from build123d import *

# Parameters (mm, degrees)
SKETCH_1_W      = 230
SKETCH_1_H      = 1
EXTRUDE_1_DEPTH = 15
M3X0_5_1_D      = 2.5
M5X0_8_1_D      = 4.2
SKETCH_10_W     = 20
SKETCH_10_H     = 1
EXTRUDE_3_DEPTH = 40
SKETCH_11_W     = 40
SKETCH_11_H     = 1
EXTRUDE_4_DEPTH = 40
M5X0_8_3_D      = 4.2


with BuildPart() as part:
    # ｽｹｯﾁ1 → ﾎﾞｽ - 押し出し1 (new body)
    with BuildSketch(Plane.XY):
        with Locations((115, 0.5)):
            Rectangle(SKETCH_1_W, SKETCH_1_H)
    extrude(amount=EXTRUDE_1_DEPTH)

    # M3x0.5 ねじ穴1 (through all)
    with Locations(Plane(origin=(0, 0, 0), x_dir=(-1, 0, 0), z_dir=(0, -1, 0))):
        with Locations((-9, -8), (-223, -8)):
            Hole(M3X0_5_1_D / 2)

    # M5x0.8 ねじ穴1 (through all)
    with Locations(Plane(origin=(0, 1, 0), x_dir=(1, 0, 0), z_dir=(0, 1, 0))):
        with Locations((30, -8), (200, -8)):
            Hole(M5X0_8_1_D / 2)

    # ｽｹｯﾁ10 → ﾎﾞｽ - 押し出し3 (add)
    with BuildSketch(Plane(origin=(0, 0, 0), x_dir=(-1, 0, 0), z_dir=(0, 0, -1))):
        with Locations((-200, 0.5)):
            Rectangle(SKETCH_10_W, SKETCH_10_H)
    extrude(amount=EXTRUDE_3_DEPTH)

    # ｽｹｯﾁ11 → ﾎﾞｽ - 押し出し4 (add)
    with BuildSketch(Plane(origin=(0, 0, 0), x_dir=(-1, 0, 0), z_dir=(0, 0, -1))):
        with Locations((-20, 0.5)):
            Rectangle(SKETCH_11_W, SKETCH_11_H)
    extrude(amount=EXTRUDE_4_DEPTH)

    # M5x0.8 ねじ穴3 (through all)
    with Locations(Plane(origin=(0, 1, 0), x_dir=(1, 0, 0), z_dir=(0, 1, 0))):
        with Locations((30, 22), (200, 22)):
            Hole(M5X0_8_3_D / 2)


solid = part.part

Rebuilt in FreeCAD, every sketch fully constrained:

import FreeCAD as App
import Part
import Sketcher

V = App.Vector
Q = App.Units.Quantity


def add_polygon(sketch, points):
    """Adds a closed chain of lines whose ends are joined by coincident constraints."""
    first, n = sketch.GeometryCount, len(points)
    for a, b in zip(points, points[1:] + points[:1]):
        sketch.addGeometry(Part.LineSegment(App.Vector(*a, 0), App.Vector(*b, 0)), False)
    for i in range(n):
        sketch.addConstraint(Sketcher.Constraint("Coincident", first + i, 2, first + (i + 1) % n, 1))

doc = App.newDocument("Part")
params = doc.addObject("Spreadsheet::Sheet", "Params")
for row, (alias, value) in enumerate([
    ("sketch1_width", "230 mm"),
    ("sketch1_height", "1 mm"),
    ("pad1_length", "15 mm"),
    ("sketch2_diameter", "2.5 mm"),
    ("hole_diameter", "2.5 mm"),
    ("sketch3_diameter", "4.2 mm"),
    ("hole2_diameter", "4.2 mm"),
    ("sketch4_width", "20 mm"),
    ("sketch4_height", "1 mm"),
    ("pad2_length", "40 mm"),
    ("sketch5_width", "40 mm"),
    ("sketch5_height", "1 mm"),
    ("pad3_length", "40 mm"),
    ("sketch6_diameter", "4.2 mm"),
    ("hole3_diameter", "4.2 mm"),
], start=1):
    params.set(f"A{row}", alias)
    params.set(f"B{row}", "=" + value)
    params.setAlias(f"B{row}", alias)

body = doc.addObject("PartDesign::Body", "Body")

# Sketch on XY plane
sketch1 = doc.addObject("Sketcher::SketchObject", "Sketch")
body.addObject(sketch1)
sketch1.AttachmentSupport = (doc.XY_Plane, [""])
sketch1.MapMode = "FlatFace"
add_polygon(sketch1, [(0, 1), (0, 0), (230, 0), (230, 1)])  # lines 0-3
sketch1.addConstraint(Sketcher.Constraint("Vertical", 0))
sketch1.addConstraint(Sketcher.Constraint("Horizontal", 1))
sketch1.addConstraint(Sketcher.Constraint("Vertical", 2))
sketch1.addConstraint(Sketcher.Constraint("Horizontal", 3))
sketch1.addConstraint(Sketcher.Constraint("Coincident", 0, 2, -1, 1))
sketch1.addConstraint(Sketcher.Constraint("DistanceX", 1, 1, 1, 2, Q("230 mm")))
sketch1.addConstraint(Sketcher.Constraint("DistanceY", 0, 2, 0, 1, Q("1 mm")))
sketch1.setExpression("Constraints[9]", "Params.sketch1_width")
sketch1.setExpression("Constraints[10]", "Params.sketch1_height")
pad1 = doc.addObject("PartDesign::Pad", "Pad")
body.addObject(pad1)
pad1.Profile = sketch1
pad1.setExpression("Length", "Params.pad1_length")

# Sketch on XZ plane
sketch2 = doc.addObject("Sketcher::SketchObject", "Sketch001")
body.addObject(sketch2)
sketch2.AttachmentSupport = (doc.XZ_Plane, [""])
sketch2.MapMode = "FlatFace"
sketch2.addGeometry(Part.Circle(V(9, 8, 0), V(0, 0, 1), 1.2), False)
sketch2.addGeometry(Part.Circle(V(223, 8, 0), V(0, 0, 1), 1.2), False)
sketch2.addConstraint(Sketcher.Constraint("Equal", 0, 1))
sketch2.addConstraint(Sketcher.Constraint("Horizontal", 0, 3, 1, 3))
sketch2.addConstraint(Sketcher.Constraint("Diameter", 0, Q("2.5 mm")))
sketch2.addConstraint(Sketcher.Constraint("DistanceX", -1, 1, 0, 3, Q("9 mm")))
sketch2.addConstraint(Sketcher.Constraint("DistanceY", -1, 1, 0, 3, Q("8 mm")))
sketch2.addConstraint(Sketcher.Constraint("DistanceX", -1, 1, 1, 3, Q("223 mm")))
sketch2.setExpression("Constraints[2]", "Params.sketch2_diameter")
doc.recompute()
hole = doc.addObject("PartDesign::Hole", "Hole")
body.addObject(hole)
hole.Profile = sketch2
hole.ThreadType = "None"
hole.setExpression("Diameter", "Params.hole_diameter")
hole.DepthType = "ThroughAll"

# Sketch on XZ plane
sketch3 = doc.addObject("Sketcher::SketchObject", "Sketch002")
body.addObject(sketch3)
sketch3.AttachmentSupport = (doc.XZ_Plane, [""])
sketch3.MapMode = "FlatFace"
sketch3.AttachmentOffset = App.Placement(V(0, 0, -1), App.Rotation())
sketch3.addGeometry(Part.Circle(V(30, 8, 0), V(0, 0, 1), 2.1), False)
sketch3.addGeometry(Part.Circle(V(200, 8, 0), V(0, 0, 1), 2.1), False)
sketch3.addConstraint(Sketcher.Constraint("Equal", 0, 1))
sketch3.addConstraint(Sketcher.Constraint("Horizontal", 0, 3, 1, 3))
sketch3.addConstraint(Sketcher.Constraint("Diameter", 0, Q("4.2 mm")))
sketch3.addConstraint(Sketcher.Constraint("DistanceX", -1, 1, 0, 3, Q("30 mm")))
sketch3.addConstraint(Sketcher.Constraint("DistanceY", -1, 1, 0, 3, Q("8 mm")))
sketch3.addConstraint(Sketcher.Constraint("DistanceX", -1, 1, 1, 3, Q("200 mm")))
sketch3.setExpression("Constraints[2]", "Params.sketch3_diameter")
doc.recompute()
hole2 = doc.addObject("PartDesign::Hole", "Hole001")
body.addObject(hole2)
hole2.Profile = sketch3
hole2.ThreadType = "None"
hole2.setExpression("Diameter", "Params.hole2_diameter")
hole2.DepthType = "ThroughAll"
hole2.Reversed = True

# Sketch on XY plane
sketch4 = doc.addObject("Sketcher::SketchObject", "Sketch003")
body.addObject(sketch4)
sketch4.AttachmentSupport = (doc.XY_Plane, [""])
sketch4.MapMode = "FlatFace"
add_polygon(sketch4, [(210, 1), (210, 0), (190, 0), (190, 1)])  # lines 0-3
sketch4.addConstraint(Sketcher.Constraint("Vertical", 0))
sketch4.addConstraint(Sketcher.Constraint("Horizontal", 1))
sketch4.addConstraint(Sketcher.Constraint("Vertical", 2))
sketch4.addConstraint(Sketcher.Constraint("Horizontal", 3))
sketch4.addConstraint(Sketcher.Constraint("PointOnObject", 0, 2, -1))
sketch4.addConstraint(Sketcher.Constraint("DistanceX", 1, 2, 1, 1, Q("20 mm")))
sketch4.addConstraint(Sketcher.Constraint("DistanceY", 0, 2, 0, 1, Q("1 mm")))
sketch4.addConstraint(Sketcher.Constraint("DistanceX", -1, 1, 0, 2, Q("210 mm")))
sketch4.setExpression("Constraints[9]", "Params.sketch4_width")
sketch4.setExpression("Constraints[10]", "Params.sketch4_height")
pad2 = doc.addObject("PartDesign::Pad", "Pad001")
body.addObject(pad2)
pad2.Profile = sketch4
pad2.setExpression("Length", "Params.pad2_length")
pad2.Reversed = True

# Sketch on XY plane
sketch5 = doc.addObject("Sketcher::SketchObject", "Sketch004")
body.addObject(sketch5)
sketch5.AttachmentSupport = (doc.XY_Plane, [""])
sketch5.MapMode = "FlatFace"
add_polygon(sketch5, [(40, 1), (40, 0), (0, 0), (0, 1)])  # lines 0-3
sketch5.addConstraint(Sketcher.Constraint("Vertical", 0))
sketch5.addConstraint(Sketcher.Constraint("Horizontal", 1))
sketch5.addConstraint(Sketcher.Constraint("Vertical", 2))
sketch5.addConstraint(Sketcher.Constraint("Horizontal", 3))
sketch5.addConstraint(Sketcher.Constraint("Coincident", 1, 2, -1, 1))
sketch5.addConstraint(Sketcher.Constraint("DistanceX", 1, 2, 1, 1, Q("40 mm")))
sketch5.addConstraint(Sketcher.Constraint("DistanceY", 0, 2, 0, 1, Q("1 mm")))
sketch5.setExpression("Constraints[9]", "Params.sketch5_width")
sketch5.setExpression("Constraints[10]", "Params.sketch5_height")
pad3 = doc.addObject("PartDesign::Pad", "Pad002")
body.addObject(pad3)
pad3.Profile = sketch5
pad3.setExpression("Length", "Params.pad3_length")
pad3.Reversed = True

# Sketch on XZ plane
sketch6 = doc.addObject("Sketcher::SketchObject", "Sketch005")
body.addObject(sketch6)
sketch6.AttachmentSupport = (doc.XZ_Plane, [""])
sketch6.MapMode = "FlatFace"
sketch6.AttachmentOffset = App.Placement(V(0, 0, -1), App.Rotation())
sketch6.addGeometry(Part.Circle(V(30, -22, 0), V(0, 0, 1), 2.1), False)
sketch6.addGeometry(Part.Circle(V(200, -22, 0), V(0, 0, 1), 2.1), False)
sketch6.addConstraint(Sketcher.Constraint("Equal", 0, 1))
sketch6.addConstraint(Sketcher.Constraint("Horizontal", 0, 3, 1, 3))
sketch6.addConstraint(Sketcher.Constraint("Diameter", 0, Q("4.2 mm")))
sketch6.addConstraint(Sketcher.Constraint("DistanceX", -1, 1, 0, 3, Q("30 mm")))
sketch6.addConstraint(Sketcher.Constraint("DistanceY", 0, 3, -1, 1, Q("22 mm")))
sketch6.addConstraint(Sketcher.Constraint("DistanceX", -1, 1, 1, 3, Q("200 mm")))
sketch6.setExpression("Constraints[2]", "Params.sketch6_diameter")
doc.recompute()
hole3 = doc.addObject("PartDesign::Hole", "Hole002")
body.addObject(hole3)
hole3.Profile = sketch6
hole3.ThreadType = "None"
hole3.setExpression("Diameter", "Params.hole3_diameter")
hole3.DepthType = "ThroughAll"
hole3.Reversed = True

doc.recompute()
